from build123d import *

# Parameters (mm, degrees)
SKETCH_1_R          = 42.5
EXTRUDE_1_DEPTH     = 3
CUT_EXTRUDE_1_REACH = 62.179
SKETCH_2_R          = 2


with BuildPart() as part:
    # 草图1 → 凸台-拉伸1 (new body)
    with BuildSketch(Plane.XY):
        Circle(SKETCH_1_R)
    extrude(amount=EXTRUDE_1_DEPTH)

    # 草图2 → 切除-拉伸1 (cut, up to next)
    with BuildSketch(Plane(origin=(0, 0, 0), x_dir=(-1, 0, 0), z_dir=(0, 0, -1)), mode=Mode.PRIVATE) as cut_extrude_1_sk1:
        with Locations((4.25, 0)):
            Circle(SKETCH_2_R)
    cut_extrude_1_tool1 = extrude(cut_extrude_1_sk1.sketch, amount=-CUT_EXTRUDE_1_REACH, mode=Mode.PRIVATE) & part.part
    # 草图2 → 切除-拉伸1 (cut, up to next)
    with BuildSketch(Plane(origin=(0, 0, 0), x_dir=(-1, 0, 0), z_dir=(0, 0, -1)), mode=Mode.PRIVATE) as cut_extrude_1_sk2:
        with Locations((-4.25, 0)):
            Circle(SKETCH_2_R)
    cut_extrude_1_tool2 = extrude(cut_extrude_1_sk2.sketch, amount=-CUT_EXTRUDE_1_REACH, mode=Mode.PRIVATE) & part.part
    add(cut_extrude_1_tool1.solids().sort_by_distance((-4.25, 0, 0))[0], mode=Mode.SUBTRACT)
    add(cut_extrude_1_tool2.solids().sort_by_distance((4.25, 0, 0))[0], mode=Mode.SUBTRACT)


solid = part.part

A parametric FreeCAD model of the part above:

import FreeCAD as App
import Part
import Sketcher

V = App.Vector

doc = App.newDocument("Part")
body = doc.addObject("PartDesign::Body", "Body")

# Sketch on XY plane
sketch1 = body.newObject("Sketcher::SketchObject", "Sketch")
sketch1.AttachmentSupport = (doc.getObject("XY_Plane"), [""])
sketch1.MapMode = "FlatFace"
sketch1.addGeometry(Part.Circle(V(0, 0, 0), V(0, 0, 1), 42.5), False)
sketch1.addConstraint(Sketcher.Constraint("Coincident", 0, 3, -1, 1))
sketch1.addConstraint(Sketcher.Constraint("Diameter", 0, 85.0))
pad1 = body.newObject("PartDesign::Pad", "Pad")
pad1.Profile = sketch1
pad1.Length = 3

# Sketch on XY plane
sketch2 = body.newObject("Sketcher::SketchObject", "Sketch001")
sketch2.AttachmentSupport = (doc.getObject("XY_Plane"), [""])
sketch2.MapMode = "FlatFace"
sketch2.addGeometry(Part.Circle(V(-4.25, 0, 0), V(0, 0, 1), 2), False)
sketch2.addConstraint(Sketcher.Constraint("PointOnObject", 0, 3, -1))
sketch2.addConstraint(Sketcher.Constraint("Diameter", 0, 4.0))
sketch2.addConstraint(Sketcher.Constraint("DistanceX", 0, 3, -1, 1, 4.25))
pocket1 = body.newObject("PartDesign::Pocket", "Pocket")
pocket1.Profile = sketch2
pocket1.Type = "UpToFirst"
pocket1.Reversed = True

# Sketch on XY plane
sketch3 = body.newObject("Sketcher::SketchObject", "Sketch002")
sketch3.AttachmentSupport = (doc.getObject("XY_Plane"), [""])
sketch3.MapMode = "FlatFace"
sketch3.addGeometry(Part.Circle(V(4.25, 0, 0), V(0, 0, 1), 2), False)
sketch3.addConstraint(Sketcher.Constraint("PointOnObject", 0, 3, -1))
sketch3.addConstraint(Sketcher.Constraint("Diameter", 0, 4.0))
sketch3.addConstraint(Sketcher.Constraint("DistanceX", -1, 1, 0, 3, 4.25))
pocket2 = body.newObject("PartDesign::Pocket", "Pocket001")
pocket2.Profile = sketch3
pocket2.Type = "UpToFirst"
pocket2.Reversed = True

doc.recompute()
